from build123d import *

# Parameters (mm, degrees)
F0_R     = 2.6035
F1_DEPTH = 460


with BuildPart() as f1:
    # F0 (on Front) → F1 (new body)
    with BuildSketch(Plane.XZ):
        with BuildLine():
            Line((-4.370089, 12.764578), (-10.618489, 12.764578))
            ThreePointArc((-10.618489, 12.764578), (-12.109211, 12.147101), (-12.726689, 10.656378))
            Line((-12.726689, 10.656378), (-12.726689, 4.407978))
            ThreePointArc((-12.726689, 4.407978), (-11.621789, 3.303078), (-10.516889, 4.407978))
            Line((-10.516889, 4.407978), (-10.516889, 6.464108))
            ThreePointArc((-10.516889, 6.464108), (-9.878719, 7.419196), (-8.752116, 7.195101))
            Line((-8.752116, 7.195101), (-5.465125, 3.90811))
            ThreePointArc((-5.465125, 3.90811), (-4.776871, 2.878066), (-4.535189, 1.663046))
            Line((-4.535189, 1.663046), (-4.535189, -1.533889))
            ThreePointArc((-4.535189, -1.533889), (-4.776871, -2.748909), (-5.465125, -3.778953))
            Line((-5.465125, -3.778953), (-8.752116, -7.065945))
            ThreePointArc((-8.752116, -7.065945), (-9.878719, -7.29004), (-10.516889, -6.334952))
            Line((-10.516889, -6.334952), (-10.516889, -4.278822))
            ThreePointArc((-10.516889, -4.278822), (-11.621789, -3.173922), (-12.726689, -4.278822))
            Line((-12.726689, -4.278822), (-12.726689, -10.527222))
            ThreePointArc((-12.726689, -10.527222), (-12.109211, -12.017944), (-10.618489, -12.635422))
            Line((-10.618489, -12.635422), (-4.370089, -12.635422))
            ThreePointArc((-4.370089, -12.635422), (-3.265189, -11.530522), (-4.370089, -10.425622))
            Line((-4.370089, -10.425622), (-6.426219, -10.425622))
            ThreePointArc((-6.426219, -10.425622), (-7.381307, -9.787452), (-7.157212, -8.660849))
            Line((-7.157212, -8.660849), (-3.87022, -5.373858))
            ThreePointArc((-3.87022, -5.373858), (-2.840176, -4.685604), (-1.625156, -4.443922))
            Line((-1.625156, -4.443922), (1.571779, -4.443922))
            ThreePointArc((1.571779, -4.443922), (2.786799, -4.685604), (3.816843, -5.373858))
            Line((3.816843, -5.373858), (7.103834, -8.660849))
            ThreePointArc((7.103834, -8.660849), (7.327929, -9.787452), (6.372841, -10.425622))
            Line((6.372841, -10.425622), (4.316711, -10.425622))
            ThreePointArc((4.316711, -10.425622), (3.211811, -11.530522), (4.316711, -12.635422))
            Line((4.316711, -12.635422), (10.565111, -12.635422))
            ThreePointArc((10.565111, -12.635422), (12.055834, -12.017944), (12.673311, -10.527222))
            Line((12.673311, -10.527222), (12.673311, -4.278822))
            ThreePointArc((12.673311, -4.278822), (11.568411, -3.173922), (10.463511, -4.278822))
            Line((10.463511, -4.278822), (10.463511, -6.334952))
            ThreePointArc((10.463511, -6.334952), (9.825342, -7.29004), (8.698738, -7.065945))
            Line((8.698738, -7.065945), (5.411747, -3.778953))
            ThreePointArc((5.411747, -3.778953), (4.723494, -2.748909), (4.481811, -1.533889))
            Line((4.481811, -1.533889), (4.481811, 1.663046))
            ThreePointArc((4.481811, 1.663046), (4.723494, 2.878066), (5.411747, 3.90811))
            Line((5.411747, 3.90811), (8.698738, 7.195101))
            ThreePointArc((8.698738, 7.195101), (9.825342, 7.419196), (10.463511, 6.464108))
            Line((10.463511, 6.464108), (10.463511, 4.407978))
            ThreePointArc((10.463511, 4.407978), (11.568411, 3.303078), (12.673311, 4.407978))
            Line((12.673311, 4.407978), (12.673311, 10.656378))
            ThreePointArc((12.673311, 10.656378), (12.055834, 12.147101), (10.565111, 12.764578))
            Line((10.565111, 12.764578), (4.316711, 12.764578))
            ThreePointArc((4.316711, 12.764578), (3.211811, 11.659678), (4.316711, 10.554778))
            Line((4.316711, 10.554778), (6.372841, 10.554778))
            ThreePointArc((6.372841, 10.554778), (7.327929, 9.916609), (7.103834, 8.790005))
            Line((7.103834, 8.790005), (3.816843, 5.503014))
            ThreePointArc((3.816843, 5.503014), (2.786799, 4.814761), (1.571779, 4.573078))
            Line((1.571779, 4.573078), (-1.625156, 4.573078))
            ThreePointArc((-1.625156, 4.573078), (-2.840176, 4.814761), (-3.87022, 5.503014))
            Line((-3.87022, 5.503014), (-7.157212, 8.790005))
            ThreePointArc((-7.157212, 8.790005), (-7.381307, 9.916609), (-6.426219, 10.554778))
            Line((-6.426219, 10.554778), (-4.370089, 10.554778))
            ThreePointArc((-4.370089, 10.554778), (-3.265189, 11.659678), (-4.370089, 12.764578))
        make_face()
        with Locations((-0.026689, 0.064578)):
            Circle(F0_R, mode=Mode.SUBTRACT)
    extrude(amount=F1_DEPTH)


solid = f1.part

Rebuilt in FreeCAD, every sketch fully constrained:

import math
import FreeCAD as App
import Part
import Sketcher

V = App.Vector
Q = App.Units.Quantity

doc = App.newDocument("Part")
body = doc.addObject("PartDesign::Body", "Body")

# Sketch on XZ plane
sketch1 = body.newObject("Sketcher::SketchObject", "Sketch")
sketch1.AttachmentSupport = (doc.getObject("XZ_Plane"), [""])
sketch1.MapMode = "FlatFace"
sketch1.addGeometry([
    Part.LineSegment(V(-4.370089, 12.764578, 0), V(-10.618489, 12.764578, 0)),  # 0
    Part.ArcOfCircle(Part.Circle(V(-10.618489, 10.656378, 0), V(0, 0, 1), 2.1082), math.radians(90.000001), math.radians(179.999999)),  # 1
    Part.LineSegment(V(-12.726689, 10.656378, 0), V(-12.726689, 4.407978, 0)),  # 2
    Part.ArcOfCircle(Part.Circle(V(-11.621789, 4.407978, 0), V(0, 0, 1), 1.1049), math.radians(180), math.radians(360)),  # 3
    Part.LineSegment(V(-10.516889, 4.407978, 0), V(-10.516889, 6.464108, 0)),  # 4
    Part.ArcOfCircle(Part.Circle(V(-9.483109, 6.464107, 0), V(0, 0, 1), 1.03378), math.radians(45.000041), math.radians(179.999964)),  # 5
    Part.LineSegment(V(-8.752116, 7.195101, 0), V(-5.465125, 3.90811, 0)),  # 6
    Part.ArcOfCircle(Part.Circle(V(-7.710183, 1.663049, 0), V(0, 0, 1), 3.174994), math.radians(-0.000045), math.radians(45.000047)),  # 7
    Part.LineSegment(V(-4.535189, 1.663046, 0), V(-4.535189, -1.533889, 0)),  # 8
    Part.ArcOfCircle(Part.Circle(V(-7.710183, -1.533892, 0), V(0, 0, 1), 3.174994), math.radians(-45.000047), math.radians(0.000045)),  # 9
    Part.LineSegment(V(-5.465125, -3.778953, 0), V(-8.752116, -7.065945, 0)),  # 10
    Part.ArcOfCircle(Part.Circle(V(-9.483109, -6.334951, 0), V(0, 0, 1), 1.03378), math.radians(-179.999964), math.radians(-45.000041)),  # 11
    Part.LineSegment(V(-10.516889, -6.334952, 0), V(-10.516889, -4.278822, 0)),  # 12
    Part.ArcOfCircle(Part.Circle(V(-11.621789, -4.278822, 0), V(0, 0, 1), 1.1049), math.radians(0), math.radians(180)),  # 13
    Part.LineSegment(V(-12.726689, -4.278822, 0), V(-12.726689, -10.527222, 0)),  # 14
    Part.ArcOfCircle(Part.Circle(V(-10.618487, -10.52722, 0), V(0, 0, 1), 2.108202), math.radians(-179.999952), math.radians(-90.000048)),  # 15
    Part.LineSegment(V(-10.618489, -12.635422, 0), V(-4.370089, -12.635422, 0)),  # 16
    Part.ArcOfCircle(Part.Circle(V(-4.370089, -11.530522, 0), V(0, 0, 1), 1.1049), math.radians(-90), math.radians(90)),  # 17
    Part.LineSegment(V(-4.370089, -10.425622, 0), V(-6.426219, -10.425622, 0)),  # 18
    Part.ArcOfCircle(Part.Circle(V(-6.426218, -9.391842, 0), V(0, 0, 1), 1.03378), math.radians(135.000041), math.radians(269.999964)),  # 19
    Part.LineSegment(V(-7.157212, -8.660849, 0), V(-3.87022, -5.373858, 0)),  # 20
    Part.ArcOfCircle(Part.Circle(V(-1.625159, -7.618916, 0), V(0, 0, 1), 3.174994), math.radians(89.999955), math.radians(135.000047)),  # 21
    Part.LineSegment(V(-1.625156, -4.443922, 0), V(1.571779, -4.443922, 0)),  # 22
    Part.ArcOfCircle(Part.Circle(V(1.571782, -7.618916, 0), V(0, 0, 1), 3.174994), math.radians(44.999953), math.radians(90.000045)),  # 23
    Part.LineSegment(V(3.816843, -5.373858, 0), V(7.103834, -8.660849, 0)),  # 24
    Part.ArcOfCircle(Part.Circle(V(6.37284, -9.391842, 0), V(0, 0, 1), 1.03378), math.radians(-89.999964), math.radians(44.999959)),  # 25
    Part.LineSegment(V(6.372841, -10.425622, 0), V(4.316711, -10.425622, 0)),  # 26
    Part.ArcOfCircle(Part.Circle(V(4.316711, -11.530522, 0), V(0, 0, 1), 1.1049), math.radians(90), math.radians(270)),  # 27
    Part.LineSegment(V(4.316711, -12.635422, 0), V(10.565111, -12.635422, 0)),  # 28
    Part.ArcOfCircle(Part.Circle(V(10.565111, -10.527222, 0), V(0, 0, 1), 2.1082), math.radians(-89.999999), math.radians(-0.000001)),  # 29
    Part.LineSegment(V(12.673311, -10.527222, 0), V(12.673311, -4.278822, 0)),  # 30
    Part.ArcOfCircle(Part.Circle(V(11.568411, -4.278822, 0), V(0, 0, 1), 1.1049), math.radians(0), math.radians(180)),  # 31
    Part.LineSegment(V(10.463511, -4.278822, 0), V(10.463511, -6.334952, 0)),  # 32
    Part.ArcOfCircle(Part.Circle(V(9.429731, -6.334952, 0), V(0, 0, 1), 1.03378), math.radians(-134.999991), math.radians(-0.000004)),  # 33
    Part.LineSegment(V(8.698738, -7.065945, 0), V(5.411747, -3.778953, 0)),  # 34
    Part.ArcOfCircle(Part.Circle(V(7.656816, -1.533887, 0), V(0, 0, 1), 3.175005), math.radians(-179.999961), math.radians(-135.000037)),  # 35
    Part.LineSegment(V(4.481811, -1.533889, 0), V(4.481811, 1.663046, 0)),  # 36
    Part.ArcOfCircle(Part.Circle(V(7.656816, 1.663044, 0), V(0, 0, 1), 3.175005), math.radians(135.000037), math.radians(179.999961)),  # 37
    Part.LineSegment(V(5.411747, 3.90811, 0), V(8.698738, 7.195101, 0)),  # 38
    Part.ArcOfCircle(Part.Circle(V(9.429731, 6.464108, 0), V(0, 0, 1), 1.03378), math.radians(0.000004), math.radians(134.999991)),  # 39
    Part.LineSegment(V(10.463511, 6.464108, 0), V(10.463511, 4.407978, 0)),  # 40
    Part.ArcOfCircle(Part.Circle(V(11.568411, 4.407978, 0), V(0, 0, 1), 1.1049), math.radians(180), math.radians(360)),  # 41
    Part.LineSegment(V(12.673311, 4.407978, 0), V(12.673311, 10.656378, 0)),  # 42
    Part.ArcOfCircle(Part.Circle(V(10.565113, 10.65638, 0), V(0, 0, 1), 2.108198), math.radians(-0.000045), math.radians(90.000045)),  # 43
    Part.LineSegment(V(10.565111, 12.764578, 0), V(4.316711, 12.764578, 0)),  # 44
    Part.ArcOfCircle(Part.Circle(V(4.316711, 11.659678, 0), V(0, 0, 1), 1.1049), math.radians(90), math.radians(270)),  # 45
    Part.LineSegment(V(4.316711, 10.554778, 0), V(6.372841, 10.554778, 0)),  # 46
    Part.ArcOfCircle(Part.Circle(V(6.372841, 9.520998, 0), V(0, 0, 1), 1.03378), math.radians(-44.999991), math.radians(89.999996)),  # 47
    Part.LineSegment(V(7.103834, 8.790005, 0), V(3.816843, 5.503014, 0)),  # 48
    Part.ArcOfCircle(Part.Circle(V(1.571777, 7.748083, 0), V(0, 0, 1), 3.175005), math.radians(-89.999961), math.radians(-45.000037)),  # 49
    Part.LineSegment(V(1.571779, 4.573078, 0), V(-1.625156, 4.573078, 0)),  # 50
    Part.ArcOfCircle(Part.Circle(V(-1.625154, 7.748083, 0), V(0, 0, 1), 3.175005), math.radians(-134.999963), math.radians(-90.000039)),  # 51
    Part.LineSegment(V(-3.87022, 5.503014, 0), V(-7.157212, 8.790005, 0)),  # 52
    Part.ArcOfCircle(Part.Circle(V(-6.426219, 9.520998, 0), V(0, 0, 1), 1.03378), math.radians(90.000004), math.radians(224.999991)),  # 53
    Part.LineSegment(V(-6.426219, 10.554778, 0), V(-4.370089, 10.554778, 0)),  # 54
    Part.ArcOfCircle(Part.Circle(V(-4.370089, 11.659678, 0), V(0, 0, 1), 1.1049), math.radians(-90), math.radians(90)),  # 55
    Part.Circle(V(-0.026689, 0.064578, 0), V(0, 0, 1), 2.6035),  # 56
], False)
sketch1.addConstraint([
    Sketcher.Constraint("Tangent", 0, 2, 1, 1),
    Sketcher.Constraint("Tangent", 1, 2, 2, 1),
    Sketcher.Constraint("Tangent", 2, 2, 3, 1),
    Sketcher.Constraint("Tangent", 3, 2, 4, 1),
    Sketcher.Constraint("Tangent", 4, 2, 5, 2),
    Sketcher.Constraint("Tangent", 5, 1, 6, 1),
    Sketcher.Constraint("Tangent", 6, 2, 7, 2),
    Sketcher.Constraint("Tangent", 7, 1, 8, 1),
    Sketcher.Constraint("Tangent", 8, 2, 9, 2),
    Sketcher.Constraint("Tangent", 9, 1, 10, 1),
    Sketcher.Constraint("Tangent", 10, 2, 11, 2),
    Sketcher.Constraint("Tangent", 11, 1, 12, 1),
    Sketcher.Constraint("Tangent", 12, 2, 13, 1),
    Sketcher.Constraint("Tangent", 13, 2, 14, 1),
    Sketcher.Constraint("Tangent", 14, 2, 15, 1),
    Sketcher.Constraint("Tangent", 15, 2, 16, 1),
    Sketcher.Constraint("Tangent", 16, 2, 17, 1),
    Sketcher.Constraint("Tangent", 17, 2, 18, 1),
    Sketcher.Constraint("Tangent", 18, 2, 19, 2),
    Sketcher.Constraint("Tangent", 19, 1, 20, 1),
    Sketcher.Constraint("Tangent", 20, 2, 21, 2),
    Sketcher.Constraint("Tangent", 21, 1, 22, 1),
    Sketcher.Constraint("Tangent", 22, 2, 23, 2),
    Sketcher.Constraint("Tangent", 23, 1, 24, 1),
    Sketcher.Constraint("Tangent", 24, 2, 25, 2),
    Sketcher.Constraint("Tangent", 25, 1, 26, 1),
    Sketcher.Constraint("Tangent", 26, 2, 27, 1),
    Sketcher.Constraint("Tangent", 27, 2, 28, 1),
    Sketcher.Constraint("Tangent", 28, 2, 29, 1),
    Sketcher.Constraint("Tangent", 29, 2, 30, 1),
    Sketcher.Constraint("Tangent", 30, 2, 31, 1),
    Sketcher.Constraint("Tangent", 31, 2, 32, 1),
    Sketcher.Constraint("Tangent", 32, 2, 33, 2),
    Sketcher.Constraint("Tangent", 33, 1, 34, 1),
    Sketcher.Constraint("Tangent", 34, 2, 35, 2),
    Sketcher.Constraint("Tangent", 35, 1, 36, 1),
    Sketcher.Constraint("Tangent", 36, 2, 37, 2),
    Sketcher.Constraint("Tangent", 37, 1, 38, 1),
    Sketcher.Constraint("Tangent", 38, 2, 39, 2),
    Sketcher.Constraint("Tangent", 39, 1, 40, 1),
    Sketcher.Constraint("Tangent", 40, 2, 41, 1),
    Sketcher.Constraint("Tangent", 41, 2, 42, 1),
    Sketcher.Constraint("Tangent", 42, 2, 43, 1),
    Sketcher.Constraint("Tangent", 43, 2, 44, 1),
    Sketcher.Constraint("Tangent", 44, 2, 45, 1),
    Sketcher.Constraint("Tangent", 45, 2, 46, 1),
    Sketcher.Constraint("Tangent", 46, 2, 47, 2),
    Sketcher.Constraint("Tangent", 47, 1, 48, 1),
    Sketcher.Constraint("Tangent", 48, 2, 49, 2),
    Sketcher.Constraint("Tangent", 49, 1, 50, 1),
    Sketcher.Constraint("Tangent", 50, 2, 51, 2),
    Sketcher.Constraint("Tangent", 51, 1, 52, 1),
    Sketcher.Constraint("Tangent", 52, 2, 53, 2),
    Sketcher.Constraint("Tangent", 53, 1, 54, 1),
    Sketcher.Constraint("Tangent", 54, 2, 55, 1),
    Sketcher.Constraint("Tangent", 55, 2, 0, 1),
    Sketcher.Constraint("Horizontal", 0),
    Sketcher.Constraint("Vertical", 2),
    Sketcher.Constraint("Vertical", 4),
    Sketcher.Constraint("Vertical", 8),
    Sketcher.Constraint("Vertical", 12),
    Sketcher.Constraint("Vertical", 14),
    Sketcher.Constraint("Horizontal", 16),
    Sketcher.Constraint("Horizontal", 18),
    Sketcher.Constraint("Horizontal", 22),
    Sketcher.Constraint("Horizontal", 26),
    Sketcher.Constraint("Horizontal", 28),
    Sketcher.Constraint("Vertical", 30),
    Sketcher.Constraint("Vertical", 32),
    Sketcher.Constraint("Vertical", 36),
    Sketcher.Constraint("Vertical", 40),
    Sketcher.Constraint("Vertical", 42),
    Sketcher.Constraint("Horizontal", 44),
    Sketcher.Constraint("Horizontal", 46),
    Sketcher.Constraint("Horizontal", 50),
    Sketcher.Constraint("Horizontal", 54),
    Sketcher.Constraint("Equal", 7, 9),
    Sketcher.Constraint("Equal", 5, 11),
    Sketcher.Constraint("Equal", 3, 13),
    Sketcher.Constraint("Equal", 1, 15),
    Sketcher.Constraint("Equal", 13, 17),
    Sketcher.Constraint("Equal", 11, 19),
    Sketcher.Constraint("Equal", 9, 21),
    Sketcher.Constraint("Equal", 21, 23),
    Sketcher.Constraint("Equal", 19, 25),
    Sketcher.Constraint("Equal", 17, 27),
    Sketcher.Constraint("Equal", 15, 29),
    Sketcher.Constraint("Equal", 27, 31),
    Sketcher.Constraint("Equal", 25, 33),
    Sketcher.Constraint("Equal", 35, 37),
    Sketcher.Constraint("Equal", 33, 39),
    Sketcher.Constraint("Equal", 31, 41),
    Sketcher.Constraint("Equal", 29, 43),
    Sketcher.Constraint("Equal", 41, 45),
    Sketcher.Constraint("Equal", 39, 47),
    Sketcher.Constraint("Equal", 37, 49),
    Sketcher.Constraint("Equal", 49, 51),
    Sketcher.Constraint("Equal", 47, 53),
    Sketcher.Constraint("Equal", 45, 55),
    Sketcher.Constraint("Perpendicular", 6, 10),
    Sketcher.Constraint("Parallel", 10, 20),
    Sketcher.Constraint("Perpendicular", 20, 24),
    Sketcher.Constraint("Parallel", 24, 34),
    Sketcher.Constraint("Perpendicular", 34, 38),
    Sketcher.Constraint("Parallel", 38, 48),
    Sketcher.Constraint("Perpendicular", 48, 52),
    Sketcher.Constraint("Horizontal", 19, 3, 25, 3),
    Sketcher.Constraint("Horizontal", 13, 3, 31, 3),
    Sketcher.Constraint("Horizontal", 11, 3, 33, 3),
    Sketcher.Constraint("Horizontal", 5, 3, 39, 3),
    Sketcher.Constraint("Horizontal", 3, 3, 41, 3),
    Sketcher.Constraint("Horizontal", 1, 3, 43, 3),
    Sketcher.Constraint("Horizontal", 20, 2, 23, 1),
    Sketcher.Constraint("Horizontal", 9, 1, 34, 2),
    Sketcher.Constraint("Horizontal", 8, 2, 35, 1),
    Sketcher.Constraint("Horizontal", 7, 1, 36, 2),
    Sketcher.Constraint("Vertical", 5, 3, 11, 3),
    Sketcher.Constraint("Vertical", 27, 3, 45, 3),
    Sketcher.Constraint("Vertical", 25, 3, 47, 3),
    Sketcher.Constraint("Vertical", 19, 3, 53, 3),
    Sketcher.Constraint("Vertical", 17, 3, 55, 3),
    Sketcher.Constraint("Vertical", 23, 1, 48, 2),
    Sketcher.Constraint("Equal", 18, 26),
    Sketcher.Constraint("Equal", 16, 28),
    Sketcher.Constraint("Equal", 44, 2),
    Sketcher.Constraint("Equal", 54, 4),
    Sketcher.Constraint("Equal", 50, 8),
    Sketcher.Constraint("Equal", 4, 12),
    Sketcher.Constraint("Equal", 2, 14),
    Sketcher.Constraint("Equal", 10, 20),
    Sketcher.Constraint("Diameter", 56, Q("0.205 in")),
    Sketcher.Constraint("Radius", 1, Q("0.083 in")),
    Sketcher.Constraint("Radius", 35, Q("0.1250002 in")),
    Sketcher.Constraint("Radius", 3, Q("0.0435 in")),
    Sketcher.Constraint("Radius", 5, Q("0.0407 in")),
    Sketcher.Constraint("DistanceX", 0, 2, 0, 1, Q("0.246 in")),
    Sketcher.Constraint("DistanceX", 18, 2, 18, 1, Q("2.05613 mm")),
    Sketcher.Constraint("DistanceY", -1, 1, 5, 1, Q("7.195101 mm")),
    Sketcher.Constraint("DistanceX", 22, 1, 22, 2, Q("3.196935 mm")),
    Sketcher.Constraint("DistanceX", 1, 3, -1, 1, Q("10.618489 mm")),
    Sketcher.Constraint("DistanceY", -1, 1, 7, 3, Q("1.663049 mm")),
    Sketcher.Constraint("DistanceX", 56, 3, -1, 1, Q("0.026689 mm")),
    Sketcher.Constraint("DistanceY", -1, 1, 56, 3, Q("0.064578 mm")),
])
pad1 = body.newObject("PartDesign::Pad", "Pad")
pad1.Profile = sketch1
pad1.Length = 460

doc.recompute()
